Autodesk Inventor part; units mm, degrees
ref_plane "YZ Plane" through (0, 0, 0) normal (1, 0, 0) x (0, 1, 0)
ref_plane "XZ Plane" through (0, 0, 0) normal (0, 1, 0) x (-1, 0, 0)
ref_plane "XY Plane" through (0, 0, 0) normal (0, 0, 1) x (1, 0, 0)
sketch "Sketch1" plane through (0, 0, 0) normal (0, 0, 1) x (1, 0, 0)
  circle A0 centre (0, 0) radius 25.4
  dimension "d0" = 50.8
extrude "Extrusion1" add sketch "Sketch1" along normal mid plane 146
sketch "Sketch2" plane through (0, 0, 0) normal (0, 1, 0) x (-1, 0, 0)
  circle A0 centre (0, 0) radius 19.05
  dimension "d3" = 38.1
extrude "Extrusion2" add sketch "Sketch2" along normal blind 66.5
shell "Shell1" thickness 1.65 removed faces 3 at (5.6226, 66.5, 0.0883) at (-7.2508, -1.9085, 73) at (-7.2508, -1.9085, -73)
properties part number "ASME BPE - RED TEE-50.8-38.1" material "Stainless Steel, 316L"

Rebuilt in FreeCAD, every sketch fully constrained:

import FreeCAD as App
import Part
import Sketcher
Q = App.Units.Quantity


def faces_at(feature, points):
    """Names of the faces that lie closest to the given points."""
    faces = feature.Shape.Faces
    near = lambda p: min(range(len(faces)), key=lambda i: faces[i].distToShape(Part.Vertex(*p))[0])
    return sorted({f"Face{near(p) + 1}" for p in points})

doc = App.newDocument("Part")
params = doc.addObject("Spreadsheet::Sheet", "Params")
for row, (alias, value) in enumerate([
    ("sketch1_diameter", "2 in"),
    ("pad1_length", "146 mm"),
    ("sketch2_diameter", "1.5 in"),
    ("pad2_length", "2.6181102 in"),
    ("thickness_wall", "1.65 mm"),
], start=1):
    params.set(f"A{row}", alias)
    params.set(f"B{row}", "=" + value)
    params.setAlias(f"B{row}", alias)

body = doc.addObject("PartDesign::Body", "Body")

# Sketch on XY plane
sketch1 = body.newObject("Sketcher::SketchObject", "Sketch")
sketch1.AttachmentSupport = (doc.getObject("XY_Plane"), [""])
sketch1.MapMode = "FlatFace"
sketch1.addGeometry(Part.Circle(App.Vector(0, 0, 0), App.Vector(0, 0, 1), 25), False)
sketch1.addConstraint(Sketcher.Constraint("Coincident", 0, 3, -1, 1))
sketch1.addConstraint(Sketcher.Constraint("Diameter", 0, Q("2 in")))
sketch1.setExpression("Constraints[1]", "Params.sketch1_diameter")
pad1 = body.newObject("PartDesign::Pad", "Pad")
pad1.Profile = sketch1
pad1.setExpression("Length", "Params.pad1_length")
pad1.Midplane = True

# Sketch on XZ plane
sketch2 = body.newObject("Sketcher::SketchObject", "Sketch001")
sketch2.AttachmentSupport = (doc.getObject("XZ_Plane"), [""])
sketch2.MapMode = "FlatFace"
sketch2.addGeometry(Part.Circle(App.Vector(0, 0, 0), App.Vector(0, 0, 1), 19), False)
sketch2.addConstraint(Sketcher.Constraint("Coincident", 0, 3, -1, 1))
sketch2.addConstraint(Sketcher.Constraint("Diameter", 0, Q("1.5 in")))
sketch2.setExpression("Constraints[1]", "Params.sketch2_diameter")
pad2 = body.newObject("PartDesign::Pad", "Pad001")
pad2.Profile = sketch2
pad2.setExpression("Length", "Params.pad2_length")
pad2.Reversed = True
doc.recompute()

thickness = body.newObject("PartDesign::Thickness", "Thickness")
thickness.Base = (pad2, faces_at(pad2, [(5.623, 66.5, 0.088), (-7.251, -1.909, 73), (-7.251, -1.909, -73)]))
thickness.setExpression("Value", "Params.thickness_wall")
thickness.Reversed = True
thickness.Join = "Intersection"

doc.recompute()
